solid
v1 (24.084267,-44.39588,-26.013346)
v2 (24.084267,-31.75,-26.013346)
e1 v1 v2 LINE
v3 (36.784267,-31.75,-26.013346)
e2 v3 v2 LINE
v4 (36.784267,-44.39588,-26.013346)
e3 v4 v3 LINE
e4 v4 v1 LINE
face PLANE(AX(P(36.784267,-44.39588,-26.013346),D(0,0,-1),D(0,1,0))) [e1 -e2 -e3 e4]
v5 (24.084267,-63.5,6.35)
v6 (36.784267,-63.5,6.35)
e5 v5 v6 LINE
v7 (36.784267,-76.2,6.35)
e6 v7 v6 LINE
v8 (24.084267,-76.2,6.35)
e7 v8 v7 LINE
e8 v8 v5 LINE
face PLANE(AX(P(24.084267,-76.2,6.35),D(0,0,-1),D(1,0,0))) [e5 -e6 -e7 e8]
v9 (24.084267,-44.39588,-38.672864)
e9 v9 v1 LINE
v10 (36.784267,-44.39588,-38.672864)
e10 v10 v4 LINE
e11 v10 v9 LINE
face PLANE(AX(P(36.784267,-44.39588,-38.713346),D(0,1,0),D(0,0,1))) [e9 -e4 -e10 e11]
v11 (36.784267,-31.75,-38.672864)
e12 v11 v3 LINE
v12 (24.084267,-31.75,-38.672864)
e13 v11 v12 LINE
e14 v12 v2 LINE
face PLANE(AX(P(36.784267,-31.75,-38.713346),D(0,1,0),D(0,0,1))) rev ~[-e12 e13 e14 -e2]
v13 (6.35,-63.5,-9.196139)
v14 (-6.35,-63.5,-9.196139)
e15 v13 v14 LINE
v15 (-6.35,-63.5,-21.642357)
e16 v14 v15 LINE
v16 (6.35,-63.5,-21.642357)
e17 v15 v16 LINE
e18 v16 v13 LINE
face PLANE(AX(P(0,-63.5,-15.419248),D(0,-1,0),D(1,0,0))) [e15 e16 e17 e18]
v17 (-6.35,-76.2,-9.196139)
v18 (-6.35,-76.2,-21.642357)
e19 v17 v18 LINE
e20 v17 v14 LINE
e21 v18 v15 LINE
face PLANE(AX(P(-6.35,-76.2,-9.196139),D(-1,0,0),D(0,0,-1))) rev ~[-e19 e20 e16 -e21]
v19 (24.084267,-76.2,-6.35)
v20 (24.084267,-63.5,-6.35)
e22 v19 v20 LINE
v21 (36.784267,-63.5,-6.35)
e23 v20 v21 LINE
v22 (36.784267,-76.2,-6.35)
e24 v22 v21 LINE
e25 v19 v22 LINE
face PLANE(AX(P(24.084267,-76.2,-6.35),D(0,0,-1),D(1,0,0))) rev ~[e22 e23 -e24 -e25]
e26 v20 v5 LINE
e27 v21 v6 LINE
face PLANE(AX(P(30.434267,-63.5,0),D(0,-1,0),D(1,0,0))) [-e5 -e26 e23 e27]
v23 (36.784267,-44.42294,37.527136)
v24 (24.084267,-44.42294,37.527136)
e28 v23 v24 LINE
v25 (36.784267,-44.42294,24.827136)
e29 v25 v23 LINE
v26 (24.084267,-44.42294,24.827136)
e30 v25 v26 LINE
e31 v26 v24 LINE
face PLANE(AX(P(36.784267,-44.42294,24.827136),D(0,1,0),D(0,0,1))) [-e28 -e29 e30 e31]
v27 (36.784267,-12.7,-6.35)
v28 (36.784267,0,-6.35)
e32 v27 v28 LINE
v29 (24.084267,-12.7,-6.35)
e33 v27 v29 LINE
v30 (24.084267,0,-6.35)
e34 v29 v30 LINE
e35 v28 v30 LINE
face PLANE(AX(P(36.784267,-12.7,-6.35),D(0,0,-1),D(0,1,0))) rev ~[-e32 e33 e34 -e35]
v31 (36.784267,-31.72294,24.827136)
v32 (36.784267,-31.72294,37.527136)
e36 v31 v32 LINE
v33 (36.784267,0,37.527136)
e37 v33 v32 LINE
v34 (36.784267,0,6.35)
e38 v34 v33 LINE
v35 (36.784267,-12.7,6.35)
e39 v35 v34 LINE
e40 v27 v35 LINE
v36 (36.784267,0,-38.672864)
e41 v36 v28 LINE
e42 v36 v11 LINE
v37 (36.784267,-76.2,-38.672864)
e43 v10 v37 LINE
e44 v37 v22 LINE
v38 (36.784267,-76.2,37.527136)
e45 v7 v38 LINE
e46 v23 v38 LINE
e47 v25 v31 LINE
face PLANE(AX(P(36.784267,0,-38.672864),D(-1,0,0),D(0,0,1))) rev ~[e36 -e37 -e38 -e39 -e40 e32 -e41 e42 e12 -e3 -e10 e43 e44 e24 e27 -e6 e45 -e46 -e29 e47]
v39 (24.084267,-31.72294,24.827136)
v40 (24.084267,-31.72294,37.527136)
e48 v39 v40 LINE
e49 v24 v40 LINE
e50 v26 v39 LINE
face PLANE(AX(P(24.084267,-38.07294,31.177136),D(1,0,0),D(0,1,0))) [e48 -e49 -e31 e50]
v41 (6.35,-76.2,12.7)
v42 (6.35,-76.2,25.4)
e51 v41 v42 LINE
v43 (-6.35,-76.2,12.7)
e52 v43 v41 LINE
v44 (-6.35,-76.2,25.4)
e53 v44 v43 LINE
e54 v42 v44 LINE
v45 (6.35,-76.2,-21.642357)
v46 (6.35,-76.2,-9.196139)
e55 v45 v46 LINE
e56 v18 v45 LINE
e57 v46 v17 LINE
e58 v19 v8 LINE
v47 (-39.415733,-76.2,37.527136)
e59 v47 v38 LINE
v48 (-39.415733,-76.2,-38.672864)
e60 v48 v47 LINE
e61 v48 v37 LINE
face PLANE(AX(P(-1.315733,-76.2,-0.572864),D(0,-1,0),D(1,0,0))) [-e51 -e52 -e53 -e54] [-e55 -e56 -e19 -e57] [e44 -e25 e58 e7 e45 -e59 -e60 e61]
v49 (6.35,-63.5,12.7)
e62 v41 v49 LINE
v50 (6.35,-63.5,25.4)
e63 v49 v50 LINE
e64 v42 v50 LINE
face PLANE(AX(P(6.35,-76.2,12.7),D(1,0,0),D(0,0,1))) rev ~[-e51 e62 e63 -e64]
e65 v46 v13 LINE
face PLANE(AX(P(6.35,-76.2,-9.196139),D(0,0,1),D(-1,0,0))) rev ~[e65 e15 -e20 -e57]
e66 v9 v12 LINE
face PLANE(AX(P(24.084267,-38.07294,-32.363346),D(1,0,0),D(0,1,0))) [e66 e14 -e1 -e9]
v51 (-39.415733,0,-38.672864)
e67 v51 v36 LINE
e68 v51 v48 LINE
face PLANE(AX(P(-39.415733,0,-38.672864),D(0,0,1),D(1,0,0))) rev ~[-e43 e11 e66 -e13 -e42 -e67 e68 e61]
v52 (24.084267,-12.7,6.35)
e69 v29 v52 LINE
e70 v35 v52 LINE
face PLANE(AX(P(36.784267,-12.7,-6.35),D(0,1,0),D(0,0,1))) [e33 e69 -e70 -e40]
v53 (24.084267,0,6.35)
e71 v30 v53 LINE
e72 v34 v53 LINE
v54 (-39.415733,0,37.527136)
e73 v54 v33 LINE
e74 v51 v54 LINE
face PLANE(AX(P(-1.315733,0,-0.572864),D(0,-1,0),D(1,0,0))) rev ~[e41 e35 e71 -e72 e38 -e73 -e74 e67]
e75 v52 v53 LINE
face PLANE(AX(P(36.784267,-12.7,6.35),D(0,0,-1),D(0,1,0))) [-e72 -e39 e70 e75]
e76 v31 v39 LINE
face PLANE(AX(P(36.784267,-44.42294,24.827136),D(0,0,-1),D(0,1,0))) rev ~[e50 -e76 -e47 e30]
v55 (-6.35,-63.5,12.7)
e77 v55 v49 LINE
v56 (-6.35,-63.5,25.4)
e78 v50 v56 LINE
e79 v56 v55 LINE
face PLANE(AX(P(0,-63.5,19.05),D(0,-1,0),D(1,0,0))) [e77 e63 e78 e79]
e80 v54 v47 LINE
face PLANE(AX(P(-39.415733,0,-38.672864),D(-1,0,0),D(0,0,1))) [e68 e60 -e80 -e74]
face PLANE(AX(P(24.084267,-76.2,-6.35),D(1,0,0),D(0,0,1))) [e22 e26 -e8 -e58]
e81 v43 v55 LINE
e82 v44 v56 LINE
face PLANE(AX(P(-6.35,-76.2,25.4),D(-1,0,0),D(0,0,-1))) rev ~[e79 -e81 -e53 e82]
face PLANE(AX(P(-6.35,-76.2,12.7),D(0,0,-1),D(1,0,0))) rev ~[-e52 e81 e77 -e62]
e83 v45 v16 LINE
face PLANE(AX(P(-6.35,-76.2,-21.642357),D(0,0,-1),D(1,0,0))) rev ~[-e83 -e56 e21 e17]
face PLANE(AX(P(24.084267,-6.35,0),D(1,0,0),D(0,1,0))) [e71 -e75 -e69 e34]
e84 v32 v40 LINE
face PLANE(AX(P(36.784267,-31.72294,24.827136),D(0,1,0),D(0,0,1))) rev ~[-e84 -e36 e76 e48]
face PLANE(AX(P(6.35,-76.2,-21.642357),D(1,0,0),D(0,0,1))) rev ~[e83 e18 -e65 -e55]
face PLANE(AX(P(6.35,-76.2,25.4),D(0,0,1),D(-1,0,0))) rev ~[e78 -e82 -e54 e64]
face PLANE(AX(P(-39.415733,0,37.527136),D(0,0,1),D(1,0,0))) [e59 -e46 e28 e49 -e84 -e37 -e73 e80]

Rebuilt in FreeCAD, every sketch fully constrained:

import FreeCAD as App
import Part
import Sketcher
from FreeCAD import Vector
Q = App.Units.Quantity


def add_polygon(sketch, points):
    """Adds a closed chain of lines whose ends are joined by coincident constraints."""
    first, n = sketch.GeometryCount, len(points)
    for a, b in zip(points, points[1:] + points[:1]):
        sketch.addGeometry(Part.LineSegment(App.Vector(*a, 0), App.Vector(*b, 0)), False)
    for i in range(n):
        sketch.addConstraint(Sketcher.Constraint("Coincident", first + i, 2, first + (i + 1) % n, 1))

doc = App.newDocument("Part")
params = doc.addObject("Spreadsheet::Sheet", "Params")
for row, (alias, value) in enumerate([
    ("sketch1_width", "3 in"),
    ("pad1_length", "3 in"),
    ("sketch2_width", "0.5 in"),
    ("pocket1_length", "0.5 in"),
    ("sketch3_width", "0.5 in"),
    ("pocket2_length", "0.5 in"),
    ("sketch4_width", "0.5 in"),
    ("pocket3_length", "0.5 in"),
], start=1):
    params.set(f"A{row}", alias)
    params.set(f"B{row}", "=" + value)
    params.setAlias(f"B{row}", alias)

body = doc.addObject("PartDesign::Body", "Body")

sketch1 = body.newObject("Sketcher::SketchObject", "Sketch")
sketch1.AttachmentSupport = (doc.getObject("XZ_Plane"), [""])
sketch1.MapMode = "FlatFace"
add_polygon(sketch1, [(-39, 38), (-39, -39), (37, -39), (37, 38)])
sketch1.addConstraint([
    Sketcher.Constraint("Vertical", 0),
    Sketcher.Constraint("Horizontal", 1),
    Sketcher.Constraint("Vertical", 2),
    Sketcher.Constraint("Horizontal", 3),
    Sketcher.Constraint("Equal", 3, 0),
    Sketcher.Constraint("DistanceX", 1, 1, 1, 2, Q("3 in")),
    Sketcher.Constraint("DistanceX", 0, 2, -1, 1, 39.415733),
    Sketcher.Constraint("DistanceY", 0, 2, -1, 1, 38.672864),
])
sketch1.setExpression("Constraints[9]", "Params.sketch1_width")
pad1 = body.newObject("PartDesign::Pad", "Pad")
pad1.Profile = sketch1
pad1.setExpression("Length", "Params.pad1_length")

sketch2 = body.newObject("Sketcher::SketchObject", "Sketch001")
sketch2.AttachmentSupport = (doc.getObject("XZ_Plane"), [""])
sketch2.MapMode = "FlatFace"
sketch2.AttachmentOffset = App.Placement(Vector(0, 0, 3 * 25.4), App.Rotation())
add_polygon(sketch2, [(24, 6), (24, -6), (37, -6), (37, 6)])
sketch2.addConstraint([
    Sketcher.Constraint("Vertical", 0),
    Sketcher.Constraint("Horizontal", 1),
    Sketcher.Constraint("Vertical", 2),
    Sketcher.Constraint("Horizontal", 3),
    Sketcher.Constraint("Equal", 3, 0),
    Sketcher.Constraint("DistanceX", 1, 1, 1, 2, Q("0.5 in")),
    Sketcher.Constraint("DistanceY", 0, 2, -1, 1, Q("0.25 in")),
    Sketcher.Constraint("DistanceX", -1, 1, 0, 2, 24.084267),
])
sketch2.setExpression("Constraints[9]", "Params.sketch2_width")
pocket1 = body.newObject("PartDesign::Pocket", "Pocket")
pocket1.Profile = sketch2
pocket1.setExpression("Length", "Params.pocket1_length")

sketch3 = body.newObject("Sketcher::SketchObject", "Sketch002")
sketch3.AttachmentSupport = (doc.getObject("XZ_Plane"), [""])
sketch3.MapMode = "FlatFace"
sketch3.AttachmentOffset = App.Placement(Vector(0, 0, 3 * 25.4), App.Rotation())
add_polygon(sketch3, [(6, -9), (-6, -9), (-6, -22), (6, -22)])
add_polygon(sketch3, [(-6, 13), (6, 13), (6, 25), (-6, 25)])
sketch3.addConstraint([
    Sketcher.Constraint("Horizontal", 0),
    Sketcher.Constraint("Vertical", 1),
    Sketcher.Constraint("Horizontal", 2),
    Sketcher.Constraint("Vertical", 3),
    Sketcher.Constraint("Horizontal", 4),
    Sketcher.Constraint("Vertical", 5),
    Sketcher.Constraint("Horizontal", 6),
    Sketcher.Constraint("Vertical", 7),
    Sketcher.Constraint("Vertical", 3, 2, 4, 2),
    Sketcher.Constraint("Vertical", 1, 2, 6, 2),
    Sketcher.Constraint("Equal", 6, 5),
    Sketcher.Constraint("DistanceX", 0, 2, 0, 1, Q("0.5 in")),
    Sketcher.Constraint("DistanceY", -1, 1, 5, 2, Q("1 in")),
    Sketcher.Constraint("DistanceX", 0, 2, -1, 1, Q("0.25 in")),
    Sketcher.Constraint("DistanceY", 1, 2, 1, 1, 12.446218),
    Sketcher.Constraint("DistanceY", 0, 2, -1, 1, 9.196139),
])
sketch3.setExpression("Constraints[19]", "Params.sketch3_width")
pocket2 = body.newObject("PartDesign::Pocket", "Pocket001")
pocket2.Profile = sketch3
pocket2.setExpression("Length", "Params.pocket2_length")

sketch4 = body.newObject("Sketcher::SketchObject", "Sketch003")
sketch4.AttachmentSupport = (doc.getObject("YZ_Plane"), [""])
sketch4.MapMode = "FlatFace"
sketch4.AttachmentOffset = App.Placement(Vector(0, 0, 36.784267), App.Rotation())
add_polygon(sketch4, [(-13, 6), (-13, -6), (0, -6), (0, 6)])
add_polygon(sketch4, [(-44, -26), (-44, -39), (-32, -39), (-32, -26)])
add_polygon(sketch4, [(-44, 38), (-44, 25), (-32, 25), (-32, 38)])
sketch4.addConstraint([
    Sketcher.Constraint("Vertical", 0),
    Sketcher.Constraint("Horizontal", 1),
    Sketcher.Constraint("Vertical", 2),
    Sketcher.Constraint("Horizontal", 3),
    Sketcher.Constraint("Vertical", 4),
    Sketcher.Constraint("Horizontal", 5),
    Sketcher.Constraint("Vertical", 6),
    Sketcher.Constraint("Horizontal", 7),
    Sketcher.Constraint("Vertical", 8),
    Sketcher.Constraint("Horizontal", 9),
    Sketcher.Constraint("Vertical", 10),
    Sketcher.Constraint("Horizontal", 11),
    Sketcher.Constraint("Symmetric", 1, 2, 2, 2, -1, 1),
    Sketcher.Constraint("Equal", 3, 9),
    Sketcher.Constraint("Equal", 11, 0),
    Sketcher.Constraint("Equal", 2, 4),
    Sketcher.Constraint("Equal", 6, 8),
    Sketcher.Constraint("DistanceX", 1, 1, 1, 2, Q("0.5 in")),
    Sketcher.Constraint("DistanceX", 5, 2, -1, 1, Q("1.25 in")),
    Sketcher.Constraint("DistanceX", 5, 1, 5, 2, 12.64588),
    Sketcher.Constraint("DistanceX", 8, 2, -1, 1, 44.42294),
    Sketcher.Constraint("DistanceY", 7, 2, 8, 2, 50.840482),
    Sketcher.Constraint("DistanceY", 4, 2, -1, 1, 38.713346),
])
sketch4.setExpression("Constraints[29]", "Params.sketch4_width")
pocket3 = body.newObject("PartDesign::Pocket", "Pocket002")
pocket3.Profile = sketch4
pocket3.setExpression("Length", "Params.pocket3_length")

doc.recompute()
